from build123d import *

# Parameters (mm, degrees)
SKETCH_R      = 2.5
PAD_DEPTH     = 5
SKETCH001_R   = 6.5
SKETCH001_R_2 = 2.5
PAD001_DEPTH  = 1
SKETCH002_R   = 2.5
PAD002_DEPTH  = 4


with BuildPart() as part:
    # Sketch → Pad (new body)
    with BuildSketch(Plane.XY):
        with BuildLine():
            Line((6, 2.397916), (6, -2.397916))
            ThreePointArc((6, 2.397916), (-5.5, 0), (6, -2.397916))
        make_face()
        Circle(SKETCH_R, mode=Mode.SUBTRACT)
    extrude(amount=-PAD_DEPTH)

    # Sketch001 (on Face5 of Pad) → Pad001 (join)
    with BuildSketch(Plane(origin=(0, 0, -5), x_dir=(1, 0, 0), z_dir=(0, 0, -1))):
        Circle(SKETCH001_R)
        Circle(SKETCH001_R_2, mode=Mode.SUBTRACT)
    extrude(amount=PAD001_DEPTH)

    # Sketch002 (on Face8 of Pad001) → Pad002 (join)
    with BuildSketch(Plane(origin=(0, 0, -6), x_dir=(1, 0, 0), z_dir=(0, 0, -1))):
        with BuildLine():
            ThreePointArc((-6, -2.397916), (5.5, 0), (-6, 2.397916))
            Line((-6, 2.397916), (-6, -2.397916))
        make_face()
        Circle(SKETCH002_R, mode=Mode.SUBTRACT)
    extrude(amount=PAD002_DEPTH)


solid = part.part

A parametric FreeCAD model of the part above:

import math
import FreeCAD as App
import Part
import Sketcher

V = App.Vector

doc = App.newDocument("Part")
params = doc.addObject("Spreadsheet::Sheet", "Params")
for row, (alias, value) in enumerate([
    ("sketch1_diameter", "5 mm"),
    ("sketch1_radius", "6 mm"),
    ("pad1_length", "5 mm"),
    ("sketch2_diameter", "13 mm"),
    ("sketch2_diameter2", "5 mm"),
    ("pad2_length", "1 mm"),
    ("sketch3_diameter", "5 mm"),
    ("sketch3_radius", "6 mm"),
    ("pad3_length", "4 mm"),
], start=1):
    params.set(f"A{row}", alias)
    params.set(f"B{row}", "=" + value)
    params.setAlias(f"B{row}", alias)

body = doc.addObject("PartDesign::Body", "Body")

sketch1 = body.newObject("Sketcher::SketchObject", "Sketch")
sketch1.AttachmentSupport = (doc.getObject("XY_Plane"), [""])
sketch1.MapMode = "FlatFace"
sketch1.addGeometry(Part.LineSegment(V(6, -2.4, 0), V(6, 2.4, 0)), False)
sketch1.addGeometry(Part.ArcOfCircle(Part.Circle(V(0.5, 0, 0), V(0, 0, 1), 6), math.radians(24), math.radians(336)), False)
sketch1.addGeometry(Part.Circle(V(0, 0, 0), V(0, 0, 1), 2.5), False)
sketch1.addConstraint(Sketcher.Constraint("Coincident", 0, 1, 1, 2))
sketch1.addConstraint(Sketcher.Constraint("Coincident", 1, 1, 0, 2))
sketch1.addConstraint(Sketcher.Constraint("Vertical", 0))
sketch1.addConstraint(Sketcher.Constraint("Coincident", 2, 3, -1, 1))
sketch1.addConstraint(Sketcher.Constraint("PointOnObject", 1, 3, -1))
sketch1.addConstraint(Sketcher.Constraint("Diameter", 2, 5.0))
sketch1.addConstraint(Sketcher.Constraint("Radius", 1, 6.0))
sketch1.addConstraint(Sketcher.Constraint("DistanceX", -1, 1, 0, 1, 6.0))
sketch1.addConstraint(Sketcher.Constraint("DistanceX", -1, 1, 1, 3, 0.5))
sketch1.setExpression("Constraints[5]", "Params.sketch1_diameter")
sketch1.setExpression("Constraints[6]", "Params.sketch1_radius")
pad1 = body.newObject("PartDesign::Pad", "Pad")
pad1.Profile = sketch1
pad1.setExpression("Length", "Params.pad1_length")
pad1.Reversed = True

sketch2 = body.newObject("Sketcher::SketchObject", "Sketch001")
sketch2.AttachmentSupport = (doc.getObject("XY_Plane"), [""])
sketch2.MapMode = "FlatFace"
sketch2.AttachmentOffset = App.Placement(V(0, 0, -5), App.Rotation())
sketch2.addGeometry(Part.Circle(V(0, 0, 0), V(0, 0, 1), 6.5), False)
sketch2.addGeometry(Part.Circle(V(0, 0, 0), V(0, 0, 1), 2.5), False)
sketch2.addConstraint(Sketcher.Constraint("Coincident", 0, 3, -1, 1))
sketch2.addConstraint(Sketcher.Constraint("Coincident", 1, 3, -1, 1))
sketch2.addConstraint(Sketcher.Constraint("Diameter", 0, 13.0))
sketch2.addConstraint(Sketcher.Constraint("Diameter", 1, 5.0))
sketch2.setExpression("Constraints[2]", "Params.sketch2_diameter")
sketch2.setExpression("Constraints[3]", "Params.sketch2_diameter2")
pad2 = body.newObject("PartDesign::Pad", "Pad001")
pad2.Profile = sketch2
pad2.setExpression("Length", "Params.pad2_length")
pad2.Reversed = True

sketch3 = body.newObject("Sketcher::SketchObject", "Sketch002")
sketch3.AttachmentSupport = (doc.getObject("XY_Plane"), [""])
sketch3.MapMode = "FlatFace"
sketch3.AttachmentOffset = App.Placement(V(0, 0, -6), App.Rotation())
sketch3.addGeometry(Part.ArcOfCircle(Part.Circle(V(-0.5, 0, 0), V(0, 0, 1), 6), math.radians(-156), math.radians(156)), False)
sketch3.addGeometry(Part.LineSegment(V(-6, -2.4, 0), V(-6, 2.4, 0)), False)
sketch3.addGeometry(Part.Circle(V(0, 0, 0), V(0, 0, 1), 2.5), False)
sketch3.addConstraint(Sketcher.Constraint("Coincident", 0, 1, 1, 1))
sketch3.addConstraint(Sketcher.Constraint("Coincident", 1, 2, 0, 2))
sketch3.addConstraint(Sketcher.Constraint("Vertical", 1))
sketch3.addConstraint(Sketcher.Constraint("Coincident", 2, 3, -1, 1))
sketch3.addConstraint(Sketcher.Constraint("PointOnObject", 0, 3, -1))
sketch3.addConstraint(Sketcher.Constraint("Diameter", 2, 5.0))
sketch3.addConstraint(Sketcher.Constraint("Radius", 0, 6.0))
sketch3.addConstraint(Sketcher.Constraint("DistanceX", 0, 1, -1, 1, 6.0))
sketch3.addConstraint(Sketcher.Constraint("DistanceX", 0, 3, -1, 1, 0.5))
sketch3.setExpression("Constraints[5]", "Params.sketch3_diameter")
sketch3.setExpression("Constraints[6]", "Params.sketch3_radius")
pad3 = body.newObject("PartDesign::Pad", "Pad002")
pad3.Profile = sketch3
pad3.setExpression("Length", "Params.pad3_length")
pad3.Reversed = True

doc.recompute()
